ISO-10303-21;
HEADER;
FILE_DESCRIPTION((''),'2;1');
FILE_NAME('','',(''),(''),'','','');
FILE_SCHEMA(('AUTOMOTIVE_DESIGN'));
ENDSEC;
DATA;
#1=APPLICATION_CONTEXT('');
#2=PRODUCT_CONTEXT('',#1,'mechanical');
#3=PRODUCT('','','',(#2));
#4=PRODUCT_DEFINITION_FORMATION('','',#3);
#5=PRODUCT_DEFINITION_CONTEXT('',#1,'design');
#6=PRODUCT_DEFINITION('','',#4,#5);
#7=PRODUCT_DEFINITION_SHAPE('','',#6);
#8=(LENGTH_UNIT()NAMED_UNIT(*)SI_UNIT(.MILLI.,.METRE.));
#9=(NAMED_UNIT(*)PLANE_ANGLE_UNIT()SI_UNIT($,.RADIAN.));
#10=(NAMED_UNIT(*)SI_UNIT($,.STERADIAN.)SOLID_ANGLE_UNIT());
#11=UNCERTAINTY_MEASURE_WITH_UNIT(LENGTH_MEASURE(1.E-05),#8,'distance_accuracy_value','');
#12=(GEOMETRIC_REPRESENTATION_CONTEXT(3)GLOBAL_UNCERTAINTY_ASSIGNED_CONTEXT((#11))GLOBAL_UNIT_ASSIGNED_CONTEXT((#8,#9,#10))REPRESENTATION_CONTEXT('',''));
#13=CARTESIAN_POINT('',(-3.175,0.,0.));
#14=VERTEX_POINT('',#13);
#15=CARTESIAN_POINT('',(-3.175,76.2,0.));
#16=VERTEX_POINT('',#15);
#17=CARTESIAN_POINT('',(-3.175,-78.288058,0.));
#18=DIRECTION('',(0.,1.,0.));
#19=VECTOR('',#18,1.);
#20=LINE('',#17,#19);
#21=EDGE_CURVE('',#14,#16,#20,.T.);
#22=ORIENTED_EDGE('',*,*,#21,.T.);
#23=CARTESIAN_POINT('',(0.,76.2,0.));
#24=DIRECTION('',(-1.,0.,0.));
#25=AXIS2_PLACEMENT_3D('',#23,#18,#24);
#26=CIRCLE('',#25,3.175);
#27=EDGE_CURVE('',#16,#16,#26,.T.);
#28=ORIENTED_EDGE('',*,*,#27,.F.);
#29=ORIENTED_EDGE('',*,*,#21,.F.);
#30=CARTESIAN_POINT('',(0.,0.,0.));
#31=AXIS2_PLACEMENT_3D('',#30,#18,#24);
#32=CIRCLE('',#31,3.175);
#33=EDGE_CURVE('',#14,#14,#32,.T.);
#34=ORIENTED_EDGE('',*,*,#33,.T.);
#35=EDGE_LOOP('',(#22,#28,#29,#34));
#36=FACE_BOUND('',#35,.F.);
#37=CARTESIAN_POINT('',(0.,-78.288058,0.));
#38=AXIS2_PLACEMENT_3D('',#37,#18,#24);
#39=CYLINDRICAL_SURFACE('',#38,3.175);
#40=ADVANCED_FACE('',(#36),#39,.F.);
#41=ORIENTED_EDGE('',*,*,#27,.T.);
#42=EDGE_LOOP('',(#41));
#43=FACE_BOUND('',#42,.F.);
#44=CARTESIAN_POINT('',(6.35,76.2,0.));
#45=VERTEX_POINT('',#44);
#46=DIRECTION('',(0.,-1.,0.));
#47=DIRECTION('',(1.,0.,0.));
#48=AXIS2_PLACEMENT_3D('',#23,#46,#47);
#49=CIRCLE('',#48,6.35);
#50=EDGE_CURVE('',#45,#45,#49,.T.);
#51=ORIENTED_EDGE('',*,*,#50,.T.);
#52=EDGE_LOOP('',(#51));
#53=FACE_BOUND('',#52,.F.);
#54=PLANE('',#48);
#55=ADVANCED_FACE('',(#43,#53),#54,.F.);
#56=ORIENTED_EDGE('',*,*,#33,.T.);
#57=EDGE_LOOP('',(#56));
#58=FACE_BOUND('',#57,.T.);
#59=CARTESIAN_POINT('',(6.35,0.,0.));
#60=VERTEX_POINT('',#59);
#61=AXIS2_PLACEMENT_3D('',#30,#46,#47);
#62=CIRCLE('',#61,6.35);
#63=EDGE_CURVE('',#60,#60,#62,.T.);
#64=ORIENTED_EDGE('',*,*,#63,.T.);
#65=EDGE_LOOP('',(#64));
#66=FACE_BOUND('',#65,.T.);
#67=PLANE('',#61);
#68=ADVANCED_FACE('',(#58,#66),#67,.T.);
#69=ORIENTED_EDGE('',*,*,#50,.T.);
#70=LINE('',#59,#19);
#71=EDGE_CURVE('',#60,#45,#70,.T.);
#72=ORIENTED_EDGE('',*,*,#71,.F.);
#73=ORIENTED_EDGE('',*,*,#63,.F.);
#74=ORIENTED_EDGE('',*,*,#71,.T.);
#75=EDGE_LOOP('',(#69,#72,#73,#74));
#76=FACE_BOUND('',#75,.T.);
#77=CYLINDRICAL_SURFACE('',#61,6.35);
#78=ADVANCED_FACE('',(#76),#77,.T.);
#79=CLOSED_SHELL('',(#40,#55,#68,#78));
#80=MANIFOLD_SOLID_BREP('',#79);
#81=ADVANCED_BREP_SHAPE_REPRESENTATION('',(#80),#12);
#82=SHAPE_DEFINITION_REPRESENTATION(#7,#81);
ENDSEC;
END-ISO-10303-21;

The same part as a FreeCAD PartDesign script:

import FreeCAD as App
import Part
import Sketcher

V = App.Vector
Q = App.Units.Quantity

doc = App.newDocument("Part")
body = doc.addObject("PartDesign::Body", "Body")

sketch1 = doc.addObject("Sketcher::SketchObject", "Sketch")
body.addObject(sketch1)
sketch1.AttachmentSupport = (doc.XZ_Plane, [""])
sketch1.MapMode = "FlatFace"
sketch1.addGeometry(Part.Circle(V(0, 0, 0), V(0, 0, 1), 6), False)
sketch1.addConstraint([
    Sketcher.Constraint("Coincident", 0, 3, -1, 1),
    Sketcher.Constraint("Diameter", 0, Q("0.5 in")),
])
pad1 = doc.addObject("PartDesign::Pad", "Pad")
body.addObject(pad1)
pad1.Profile = sketch1
pad1.Length = Q("3 in")
pad1.Reversed = True

sketch2 = doc.addObject("Sketcher::SketchObject", "Sketch001")
body.addObject(sketch2)
sketch2.AttachmentSupport = (doc.XZ_Plane, [""])
sketch2.MapMode = "FlatFace"
sketch2.addGeometry(Part.Circle(V(0, 0, 0), V(0, 0, 1), 3.2), False)
sketch2.addConstraint([
    Sketcher.Constraint("Coincident", 0, 3, -1, 1),
    Sketcher.Constraint("Diameter", 0, Q("0.25 in")),
])
doc.recompute()
hole = doc.addObject("PartDesign::Hole", "Hole")
body.addObject(hole)
hole.Profile = sketch2
hole.ThreadType = "None"
hole.Diameter = Q("0.25 in")
hole.DepthType = "ThroughAll"

doc.recompute()
